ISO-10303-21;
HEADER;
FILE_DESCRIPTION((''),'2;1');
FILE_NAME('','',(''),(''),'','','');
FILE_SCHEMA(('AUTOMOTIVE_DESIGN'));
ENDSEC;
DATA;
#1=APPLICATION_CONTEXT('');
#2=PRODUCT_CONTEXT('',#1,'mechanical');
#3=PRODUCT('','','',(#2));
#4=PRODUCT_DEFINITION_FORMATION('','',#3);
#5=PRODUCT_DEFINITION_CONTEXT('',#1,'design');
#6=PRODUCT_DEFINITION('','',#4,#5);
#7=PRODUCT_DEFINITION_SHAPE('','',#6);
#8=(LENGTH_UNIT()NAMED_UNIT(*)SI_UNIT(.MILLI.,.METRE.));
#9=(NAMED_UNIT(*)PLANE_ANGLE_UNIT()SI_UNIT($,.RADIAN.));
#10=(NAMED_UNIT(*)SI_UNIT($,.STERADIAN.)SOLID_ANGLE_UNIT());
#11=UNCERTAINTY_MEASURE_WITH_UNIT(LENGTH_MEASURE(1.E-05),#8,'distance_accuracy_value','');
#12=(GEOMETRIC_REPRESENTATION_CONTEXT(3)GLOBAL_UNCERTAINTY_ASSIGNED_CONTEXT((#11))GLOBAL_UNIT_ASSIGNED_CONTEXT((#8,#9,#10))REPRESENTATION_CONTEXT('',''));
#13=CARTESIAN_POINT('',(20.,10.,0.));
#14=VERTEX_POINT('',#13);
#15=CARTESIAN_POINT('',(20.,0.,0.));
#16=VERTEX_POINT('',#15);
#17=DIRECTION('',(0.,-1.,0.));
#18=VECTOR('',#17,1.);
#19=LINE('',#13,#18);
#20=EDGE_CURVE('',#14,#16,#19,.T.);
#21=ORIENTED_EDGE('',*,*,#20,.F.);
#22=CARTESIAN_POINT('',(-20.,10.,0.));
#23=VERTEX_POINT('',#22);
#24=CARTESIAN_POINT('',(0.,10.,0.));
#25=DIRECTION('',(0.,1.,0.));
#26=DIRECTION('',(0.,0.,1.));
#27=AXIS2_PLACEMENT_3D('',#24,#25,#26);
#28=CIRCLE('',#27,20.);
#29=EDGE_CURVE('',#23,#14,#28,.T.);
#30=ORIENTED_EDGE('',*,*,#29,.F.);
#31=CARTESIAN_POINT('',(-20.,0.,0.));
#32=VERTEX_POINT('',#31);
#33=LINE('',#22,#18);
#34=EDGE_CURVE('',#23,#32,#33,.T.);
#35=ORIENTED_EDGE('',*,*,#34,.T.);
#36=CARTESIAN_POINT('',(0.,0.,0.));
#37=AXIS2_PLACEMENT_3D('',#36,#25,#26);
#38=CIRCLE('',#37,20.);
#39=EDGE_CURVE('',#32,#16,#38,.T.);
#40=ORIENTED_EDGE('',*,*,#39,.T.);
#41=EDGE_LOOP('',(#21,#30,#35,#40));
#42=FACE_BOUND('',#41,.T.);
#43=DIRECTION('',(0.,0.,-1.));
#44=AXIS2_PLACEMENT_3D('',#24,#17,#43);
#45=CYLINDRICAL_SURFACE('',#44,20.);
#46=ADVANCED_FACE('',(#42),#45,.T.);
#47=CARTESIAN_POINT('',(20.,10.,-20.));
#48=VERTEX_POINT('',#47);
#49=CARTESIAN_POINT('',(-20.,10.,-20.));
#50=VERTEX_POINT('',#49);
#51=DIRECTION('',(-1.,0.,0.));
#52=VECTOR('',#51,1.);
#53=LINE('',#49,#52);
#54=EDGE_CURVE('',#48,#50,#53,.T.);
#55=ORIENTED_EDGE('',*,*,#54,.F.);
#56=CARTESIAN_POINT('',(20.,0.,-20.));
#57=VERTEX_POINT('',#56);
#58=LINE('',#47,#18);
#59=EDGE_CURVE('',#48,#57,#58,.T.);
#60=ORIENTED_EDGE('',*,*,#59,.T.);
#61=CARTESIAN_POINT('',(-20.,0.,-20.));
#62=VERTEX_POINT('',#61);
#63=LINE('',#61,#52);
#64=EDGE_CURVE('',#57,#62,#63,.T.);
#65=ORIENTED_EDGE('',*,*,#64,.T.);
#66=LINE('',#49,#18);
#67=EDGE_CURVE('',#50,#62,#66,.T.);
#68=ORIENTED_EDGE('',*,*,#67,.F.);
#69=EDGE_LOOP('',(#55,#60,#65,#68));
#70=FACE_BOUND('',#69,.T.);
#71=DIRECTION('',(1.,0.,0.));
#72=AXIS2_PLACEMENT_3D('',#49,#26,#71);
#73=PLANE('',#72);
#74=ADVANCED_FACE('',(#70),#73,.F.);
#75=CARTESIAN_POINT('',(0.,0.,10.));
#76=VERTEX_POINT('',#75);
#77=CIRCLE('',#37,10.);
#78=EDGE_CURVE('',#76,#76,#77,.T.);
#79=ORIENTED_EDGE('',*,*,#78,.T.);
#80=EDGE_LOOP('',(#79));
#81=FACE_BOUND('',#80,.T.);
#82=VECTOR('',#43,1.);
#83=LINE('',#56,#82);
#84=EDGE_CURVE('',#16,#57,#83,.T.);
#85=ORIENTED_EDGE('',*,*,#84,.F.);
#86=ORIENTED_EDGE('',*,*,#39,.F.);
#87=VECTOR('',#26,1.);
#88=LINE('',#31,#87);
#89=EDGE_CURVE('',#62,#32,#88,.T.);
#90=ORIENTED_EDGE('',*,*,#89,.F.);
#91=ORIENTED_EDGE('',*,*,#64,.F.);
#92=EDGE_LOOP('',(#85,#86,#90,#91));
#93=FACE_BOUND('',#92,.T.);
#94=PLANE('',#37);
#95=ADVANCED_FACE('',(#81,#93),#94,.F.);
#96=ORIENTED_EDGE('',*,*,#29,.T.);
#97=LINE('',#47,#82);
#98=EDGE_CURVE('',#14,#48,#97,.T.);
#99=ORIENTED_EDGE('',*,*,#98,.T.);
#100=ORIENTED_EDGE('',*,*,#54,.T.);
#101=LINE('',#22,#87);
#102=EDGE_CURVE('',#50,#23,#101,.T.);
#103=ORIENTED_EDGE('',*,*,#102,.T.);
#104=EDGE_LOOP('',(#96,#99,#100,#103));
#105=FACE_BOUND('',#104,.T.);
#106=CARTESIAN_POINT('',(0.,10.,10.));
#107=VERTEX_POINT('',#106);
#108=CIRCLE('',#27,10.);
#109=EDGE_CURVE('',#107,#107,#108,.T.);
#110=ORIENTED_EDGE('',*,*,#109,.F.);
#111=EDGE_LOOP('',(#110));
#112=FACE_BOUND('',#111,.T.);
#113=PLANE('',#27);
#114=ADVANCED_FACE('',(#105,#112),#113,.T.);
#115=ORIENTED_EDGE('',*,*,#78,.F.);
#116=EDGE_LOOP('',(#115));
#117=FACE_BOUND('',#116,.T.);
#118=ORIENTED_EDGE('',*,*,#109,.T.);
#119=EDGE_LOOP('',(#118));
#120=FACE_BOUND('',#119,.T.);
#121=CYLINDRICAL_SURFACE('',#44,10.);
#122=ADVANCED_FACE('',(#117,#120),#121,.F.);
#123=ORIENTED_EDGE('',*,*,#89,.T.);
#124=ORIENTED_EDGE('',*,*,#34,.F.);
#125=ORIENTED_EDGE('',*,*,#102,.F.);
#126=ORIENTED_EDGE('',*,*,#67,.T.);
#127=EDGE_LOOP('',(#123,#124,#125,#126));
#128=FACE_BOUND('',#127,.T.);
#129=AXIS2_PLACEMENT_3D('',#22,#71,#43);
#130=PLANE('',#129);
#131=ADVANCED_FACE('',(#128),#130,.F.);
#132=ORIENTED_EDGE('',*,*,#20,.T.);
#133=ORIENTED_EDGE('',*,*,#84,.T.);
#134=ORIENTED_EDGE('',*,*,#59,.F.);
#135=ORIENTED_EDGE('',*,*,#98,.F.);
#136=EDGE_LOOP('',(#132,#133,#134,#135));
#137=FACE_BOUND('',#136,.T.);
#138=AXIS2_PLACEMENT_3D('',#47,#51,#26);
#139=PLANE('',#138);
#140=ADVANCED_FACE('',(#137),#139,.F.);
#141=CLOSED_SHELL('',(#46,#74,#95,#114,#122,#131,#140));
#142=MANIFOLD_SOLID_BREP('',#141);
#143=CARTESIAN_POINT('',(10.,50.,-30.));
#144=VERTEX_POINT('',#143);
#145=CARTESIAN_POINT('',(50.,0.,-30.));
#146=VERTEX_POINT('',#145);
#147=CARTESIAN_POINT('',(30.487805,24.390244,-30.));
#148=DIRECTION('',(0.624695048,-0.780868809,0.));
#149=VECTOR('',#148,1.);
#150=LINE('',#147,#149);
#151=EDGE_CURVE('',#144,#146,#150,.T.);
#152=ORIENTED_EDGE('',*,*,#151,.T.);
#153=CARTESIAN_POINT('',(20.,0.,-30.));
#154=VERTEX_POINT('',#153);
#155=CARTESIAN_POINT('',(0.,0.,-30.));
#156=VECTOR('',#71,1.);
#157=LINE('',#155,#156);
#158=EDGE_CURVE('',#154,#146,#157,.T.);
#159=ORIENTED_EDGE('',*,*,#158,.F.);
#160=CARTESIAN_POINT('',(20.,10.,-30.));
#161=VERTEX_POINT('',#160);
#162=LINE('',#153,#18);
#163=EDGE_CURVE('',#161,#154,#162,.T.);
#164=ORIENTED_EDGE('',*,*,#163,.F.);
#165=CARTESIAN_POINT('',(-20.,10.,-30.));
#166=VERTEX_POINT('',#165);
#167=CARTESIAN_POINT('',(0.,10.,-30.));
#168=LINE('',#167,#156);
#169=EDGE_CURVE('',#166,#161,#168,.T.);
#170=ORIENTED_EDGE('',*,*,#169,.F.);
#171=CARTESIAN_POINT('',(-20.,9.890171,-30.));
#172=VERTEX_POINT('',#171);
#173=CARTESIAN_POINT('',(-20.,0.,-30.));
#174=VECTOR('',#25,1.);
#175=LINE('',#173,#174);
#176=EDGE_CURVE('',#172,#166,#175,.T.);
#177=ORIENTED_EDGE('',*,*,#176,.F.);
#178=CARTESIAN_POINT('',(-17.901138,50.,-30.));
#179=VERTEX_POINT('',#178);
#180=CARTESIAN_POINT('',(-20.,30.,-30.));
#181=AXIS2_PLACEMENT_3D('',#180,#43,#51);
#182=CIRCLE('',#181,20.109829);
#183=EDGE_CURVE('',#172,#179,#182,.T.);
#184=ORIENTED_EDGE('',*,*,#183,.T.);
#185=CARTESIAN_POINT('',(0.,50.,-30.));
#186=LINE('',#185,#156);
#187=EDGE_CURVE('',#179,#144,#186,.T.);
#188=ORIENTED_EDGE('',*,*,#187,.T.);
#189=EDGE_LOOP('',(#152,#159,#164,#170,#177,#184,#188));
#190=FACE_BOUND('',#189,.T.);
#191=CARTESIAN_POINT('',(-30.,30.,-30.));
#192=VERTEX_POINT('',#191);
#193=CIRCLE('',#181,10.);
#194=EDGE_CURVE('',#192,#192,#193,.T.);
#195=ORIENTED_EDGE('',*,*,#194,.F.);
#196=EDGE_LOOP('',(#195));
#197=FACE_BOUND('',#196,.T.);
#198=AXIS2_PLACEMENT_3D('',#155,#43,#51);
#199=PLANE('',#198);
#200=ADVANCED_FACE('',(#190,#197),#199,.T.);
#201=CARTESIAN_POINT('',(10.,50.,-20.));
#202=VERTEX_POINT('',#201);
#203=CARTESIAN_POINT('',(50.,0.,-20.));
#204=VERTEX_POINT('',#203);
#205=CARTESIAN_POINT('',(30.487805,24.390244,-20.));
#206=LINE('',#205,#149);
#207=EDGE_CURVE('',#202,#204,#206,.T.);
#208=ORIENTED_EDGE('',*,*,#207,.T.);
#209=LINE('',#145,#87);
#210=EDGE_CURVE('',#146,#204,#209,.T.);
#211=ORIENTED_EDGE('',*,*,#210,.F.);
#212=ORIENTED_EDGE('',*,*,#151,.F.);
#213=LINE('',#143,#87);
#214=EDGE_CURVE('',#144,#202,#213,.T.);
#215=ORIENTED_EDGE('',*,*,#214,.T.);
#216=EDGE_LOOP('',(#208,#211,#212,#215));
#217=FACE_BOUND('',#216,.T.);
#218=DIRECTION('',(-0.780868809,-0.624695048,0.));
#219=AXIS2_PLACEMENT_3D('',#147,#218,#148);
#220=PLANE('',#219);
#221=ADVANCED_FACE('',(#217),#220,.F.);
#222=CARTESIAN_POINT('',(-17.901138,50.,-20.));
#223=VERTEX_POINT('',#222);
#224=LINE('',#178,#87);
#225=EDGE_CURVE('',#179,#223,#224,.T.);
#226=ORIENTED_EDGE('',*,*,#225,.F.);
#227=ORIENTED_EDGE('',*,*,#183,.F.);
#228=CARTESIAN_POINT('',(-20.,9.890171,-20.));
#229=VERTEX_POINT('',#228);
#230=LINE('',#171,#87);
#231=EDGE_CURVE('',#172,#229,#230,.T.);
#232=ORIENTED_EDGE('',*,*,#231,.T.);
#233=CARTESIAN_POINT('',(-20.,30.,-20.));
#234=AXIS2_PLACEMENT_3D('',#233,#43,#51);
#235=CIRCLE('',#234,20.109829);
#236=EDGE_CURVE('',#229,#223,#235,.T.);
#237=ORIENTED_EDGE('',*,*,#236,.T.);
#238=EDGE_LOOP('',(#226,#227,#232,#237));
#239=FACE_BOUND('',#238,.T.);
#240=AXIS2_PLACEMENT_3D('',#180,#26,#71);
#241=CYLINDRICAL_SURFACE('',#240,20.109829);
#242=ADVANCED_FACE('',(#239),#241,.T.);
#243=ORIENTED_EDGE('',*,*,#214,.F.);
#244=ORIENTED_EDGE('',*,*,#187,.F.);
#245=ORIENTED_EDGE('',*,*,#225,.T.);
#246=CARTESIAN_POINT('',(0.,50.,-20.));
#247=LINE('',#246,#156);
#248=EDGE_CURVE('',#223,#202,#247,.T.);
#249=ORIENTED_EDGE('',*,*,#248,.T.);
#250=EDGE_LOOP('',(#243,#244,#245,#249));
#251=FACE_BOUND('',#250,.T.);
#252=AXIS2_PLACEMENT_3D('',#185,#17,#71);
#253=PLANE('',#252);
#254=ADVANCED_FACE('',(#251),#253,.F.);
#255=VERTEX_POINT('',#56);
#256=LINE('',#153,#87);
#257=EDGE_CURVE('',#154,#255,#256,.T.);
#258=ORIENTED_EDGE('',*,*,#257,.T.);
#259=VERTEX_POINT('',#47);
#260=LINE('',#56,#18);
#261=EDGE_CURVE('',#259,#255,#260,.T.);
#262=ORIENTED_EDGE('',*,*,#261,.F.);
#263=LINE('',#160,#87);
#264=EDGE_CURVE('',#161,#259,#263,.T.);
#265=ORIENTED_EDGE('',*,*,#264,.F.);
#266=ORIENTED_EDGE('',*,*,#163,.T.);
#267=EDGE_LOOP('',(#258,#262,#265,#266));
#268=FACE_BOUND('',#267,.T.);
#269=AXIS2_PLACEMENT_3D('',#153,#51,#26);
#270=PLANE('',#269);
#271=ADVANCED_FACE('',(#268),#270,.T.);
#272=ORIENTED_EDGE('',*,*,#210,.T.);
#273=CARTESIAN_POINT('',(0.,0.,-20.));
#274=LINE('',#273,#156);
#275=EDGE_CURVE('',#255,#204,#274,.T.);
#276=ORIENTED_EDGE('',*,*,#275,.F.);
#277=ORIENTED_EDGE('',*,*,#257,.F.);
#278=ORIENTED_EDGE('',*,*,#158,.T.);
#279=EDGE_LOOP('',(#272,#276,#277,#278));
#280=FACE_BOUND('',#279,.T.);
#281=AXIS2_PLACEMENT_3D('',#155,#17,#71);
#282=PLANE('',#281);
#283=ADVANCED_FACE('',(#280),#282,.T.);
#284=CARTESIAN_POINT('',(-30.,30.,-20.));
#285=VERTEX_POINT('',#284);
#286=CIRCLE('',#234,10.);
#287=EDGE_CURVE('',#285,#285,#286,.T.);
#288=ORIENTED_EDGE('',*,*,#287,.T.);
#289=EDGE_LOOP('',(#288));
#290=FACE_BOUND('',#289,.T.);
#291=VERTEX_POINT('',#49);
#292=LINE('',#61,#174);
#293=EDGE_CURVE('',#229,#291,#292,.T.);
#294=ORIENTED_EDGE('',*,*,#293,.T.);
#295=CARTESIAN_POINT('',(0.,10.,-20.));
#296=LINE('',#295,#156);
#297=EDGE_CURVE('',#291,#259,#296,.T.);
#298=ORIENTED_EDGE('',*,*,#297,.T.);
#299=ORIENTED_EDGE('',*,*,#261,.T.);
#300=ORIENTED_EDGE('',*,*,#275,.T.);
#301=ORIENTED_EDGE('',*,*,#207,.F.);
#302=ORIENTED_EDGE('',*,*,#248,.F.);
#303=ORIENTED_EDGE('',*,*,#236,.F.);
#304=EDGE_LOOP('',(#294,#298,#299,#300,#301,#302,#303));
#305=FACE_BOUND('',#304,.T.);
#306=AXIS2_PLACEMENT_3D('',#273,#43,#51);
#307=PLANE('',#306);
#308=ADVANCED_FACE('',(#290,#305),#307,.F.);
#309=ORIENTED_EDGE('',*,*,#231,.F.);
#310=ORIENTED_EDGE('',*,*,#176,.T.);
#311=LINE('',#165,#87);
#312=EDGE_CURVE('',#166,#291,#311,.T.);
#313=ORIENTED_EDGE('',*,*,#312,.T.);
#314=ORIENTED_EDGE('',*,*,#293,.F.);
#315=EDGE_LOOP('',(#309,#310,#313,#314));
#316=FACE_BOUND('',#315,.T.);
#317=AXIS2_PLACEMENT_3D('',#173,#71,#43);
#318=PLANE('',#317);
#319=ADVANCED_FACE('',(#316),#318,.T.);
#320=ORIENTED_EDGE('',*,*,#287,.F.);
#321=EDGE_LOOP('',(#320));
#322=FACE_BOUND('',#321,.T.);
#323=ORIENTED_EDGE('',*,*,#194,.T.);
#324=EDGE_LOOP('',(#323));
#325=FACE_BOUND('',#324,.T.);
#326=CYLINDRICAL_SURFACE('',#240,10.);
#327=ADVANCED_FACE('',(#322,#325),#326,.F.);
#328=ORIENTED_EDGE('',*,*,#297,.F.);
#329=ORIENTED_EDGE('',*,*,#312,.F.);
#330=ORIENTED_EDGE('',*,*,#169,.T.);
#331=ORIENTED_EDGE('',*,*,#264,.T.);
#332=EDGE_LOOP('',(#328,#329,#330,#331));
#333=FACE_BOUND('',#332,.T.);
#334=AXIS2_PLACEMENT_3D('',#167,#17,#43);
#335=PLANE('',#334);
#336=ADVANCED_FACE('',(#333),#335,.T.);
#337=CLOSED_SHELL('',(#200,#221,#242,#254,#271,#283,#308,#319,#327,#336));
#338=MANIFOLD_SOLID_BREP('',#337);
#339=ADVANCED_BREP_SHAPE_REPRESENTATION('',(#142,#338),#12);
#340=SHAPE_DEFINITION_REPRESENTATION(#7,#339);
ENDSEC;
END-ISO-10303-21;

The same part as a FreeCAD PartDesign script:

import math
import FreeCAD as App
import Part
import Sketcher
Q = App.Units.Quantity

doc = App.newDocument("Part")
body = doc.addObject("PartDesign::Body", "Body")

# Sketch on XZ plane
sketch1 = body.newObject("Sketcher::SketchObject", "Sketch")
sketch1.AttachmentSupport = (doc.getObject("XZ_Plane"), [""])
sketch1.MapMode = "FlatFace"
sketch1.addGeometry(Part.LineSegment(App.Vector(-20, -20, 0), App.Vector(-20, 0, 0)), False)
sketch1.addGeometry(Part.ArcOfCircle(Part.Circle(App.Vector(0, 0, 0), App.Vector(0, 0, 1), 20), math.radians(0), math.radians(180)), False)
sketch1.addGeometry(Part.LineSegment(App.Vector(20, 0, 0), App.Vector(20, -20, 0)), False)
sketch1.addGeometry(Part.LineSegment(App.Vector(20, -20, 0), App.Vector(-20, -20, 0)), False)
sketch1.addGeometry(Part.Circle(App.Vector(0, 0, 0), App.Vector(0, 0, 1), 10), False)
sketch1.addConstraint(Sketcher.Constraint("Tangent", 0, 2, 1, 2))
sketch1.addConstraint(Sketcher.Constraint("Tangent", 1, 1, 2, 1))
sketch1.addConstraint(Sketcher.Constraint("Coincident", 2, 2, 3, 1))
sketch1.addConstraint(Sketcher.Constraint("Coincident", 3, 2, 0, 1))
sketch1.addConstraint(Sketcher.Constraint("Vertical", 0))
sketch1.addConstraint(Sketcher.Constraint("Vertical", 2))
sketch1.addConstraint(Sketcher.Constraint("Horizontal", 3))
sketch1.addConstraint(Sketcher.Constraint("Coincident", 1, 3, -1, 1))
sketch1.addConstraint(Sketcher.Constraint("Coincident", 4, 3, -1, 1))
sketch1.addConstraint(Sketcher.Constraint("Diameter", 4, Q("20 mm")))
sketch1.addConstraint(Sketcher.Constraint("Radius", 1, Q("20 mm")))
sketch1.addConstraint(Sketcher.Constraint("DistanceY", 0, 1, 0, 2, Q("20 mm")))
pad1 = body.newObject("PartDesign::Pad", "Pad")
pad1.Profile = sketch1
pad1.Length = 10
pad1.Reversed = True
body2 = doc.addObject("PartDesign::Body", "Body001")

# Sketch on XY plane
sketch2 = body2.newObject("Sketcher::SketchObject", "Sketch001")
sketch2.AttachmentSupport = (doc.getObject("XY_Plane001"), [""])
sketch2.MapMode = "FlatFace"
sketch2.AttachmentOffset = App.Placement(App.Vector(0, 0, -20), App.Rotation())
sketch2.addGeometry(Part.LineSegment(App.Vector(-20, 10, 0), App.Vector(-20, 9.89, 0)), False)
sketch2.addGeometry(Part.ArcOfCircle(Part.Circle(App.Vector(-20, 30, 0), App.Vector(0, 0, 1), 20.11), math.radians(84), math.radians(270)), False)
sketch2.addGeometry(Part.LineSegment(App.Vector(-17.9, 50, 0), App.Vector(10, 50, 0)), False)
sketch2.addGeometry(Part.LineSegment(App.Vector(10, 50, 0), App.Vector(50, 0, 0)), False)
sketch2.addGeometry(Part.LineSegment(App.Vector(50, 0, 0), App.Vector(20, 0, 0)), False)
sketch2.addGeometry(Part.LineSegment(App.Vector(20, 0, 0), App.Vector(20, 10, 0)), False)
sketch2.addGeometry(Part.LineSegment(App.Vector(20, 10, 0), App.Vector(-20, 10, 0)), False)
sketch2.addGeometry(Part.ArcOfCircle(Part.Circle(App.Vector(-20, 30, 0), App.Vector(0, 0, 1), 10), math.radians(90), math.radians(180)), False)
sketch2.addGeometry(Part.ArcOfCircle(Part.Circle(App.Vector(-20, 30, 0), App.Vector(0, 0, 1), 10), math.radians(180), math.radians(270)), False)
sketch2.addGeometry(Part.ArcOfCircle(Part.Circle(App.Vector(-20, 30, 0), App.Vector(0, 0, 1), 10), math.radians(-90), math.radians(90)), False)
sketch2.addConstraint(Sketcher.Constraint("Coincident", 0, 2, 1, 2))
sketch2.addConstraint(Sketcher.Constraint("Coincident", 1, 1, 2, 1))
sketch2.addConstraint(Sketcher.Constraint("Coincident", 2, 2, 3, 1))
sketch2.addConstraint(Sketcher.Constraint("Coincident", 3, 2, 4, 1))
sketch2.addConstraint(Sketcher.Constraint("Coincident", 4, 2, 5, 1))
sketch2.addConstraint(Sketcher.Constraint("Coincident", 5, 2, 6, 1))
sketch2.addConstraint(Sketcher.Constraint("Coincident", 6, 2, 0, 1))
sketch2.addConstraint(Sketcher.Constraint("Tangent", 7, 2, 8, 1))
sketch2.addConstraint(Sketcher.Constraint("Tangent", 8, 2, 9, 1))
sketch2.addConstraint(Sketcher.Constraint("Tangent", 9, 2, 7, 1))
sketch2.addConstraint(Sketcher.Constraint("Vertical", 0))
sketch2.addConstraint(Sketcher.Constraint("Horizontal", 2))
sketch2.addConstraint(Sketcher.Constraint("Horizontal", 4))
sketch2.addConstraint(Sketcher.Constraint("Vertical", 5))
sketch2.addConstraint(Sketcher.Constraint("Horizontal", 6))
sketch2.addConstraint(Sketcher.Constraint("Coincident", 7, 3, 1, 3))
sketch2.addConstraint(Sketcher.Constraint("PointOnObject", 3, 2, -1))
sketch2.addConstraint(Sketcher.Constraint("Horizontal", 9, 3, 7, 2))
sketch2.addConstraint(Sketcher.Constraint("Vertical", 9, 3, 0, 2))
sketch2.addConstraint(Sketcher.Constraint("Vertical", 6, 2, 8, 2))
sketch2.addConstraint(Sketcher.Constraint("Vertical", 8, 2, 9, 2))
sketch2.addConstraint(Sketcher.Constraint("Radius", 7, Q("10 mm")))
sketch2.addConstraint(Sketcher.Constraint("DistanceX", 4, 2, 4, 1, Q("30 mm")))
sketch2.addConstraint(Sketcher.Constraint("DistanceX", 6, 2, 6, 1, Q("40 mm")))
sketch2.addConstraint(Sketcher.Constraint("DistanceY", 5, 1, 5, 2, Q("10 mm")))
sketch2.addConstraint(Sketcher.Constraint("DistanceX", 1, 3, -1, 1, Q("20 mm")))
sketch2.addConstraint(Sketcher.Constraint("DistanceY", -1, 1, 1, 3, Q("30 mm")))
sketch2.addConstraint(Sketcher.Constraint("DistanceY", -1, 1, 1, 1, Q("50 mm")))
sketch2.addConstraint(Sketcher.Constraint("DistanceX", -1, 1, 2, 2, Q("10 mm")))
sketch2.addConstraint(Sketcher.Constraint("Radius", 1, Q("20.109829 mm")))
pad2 = body2.newObject("PartDesign::Pad", "Pad001")
pad2.Profile = sketch2
pad2.Length = 10
pad2.Reversed = True

doc.recompute()
